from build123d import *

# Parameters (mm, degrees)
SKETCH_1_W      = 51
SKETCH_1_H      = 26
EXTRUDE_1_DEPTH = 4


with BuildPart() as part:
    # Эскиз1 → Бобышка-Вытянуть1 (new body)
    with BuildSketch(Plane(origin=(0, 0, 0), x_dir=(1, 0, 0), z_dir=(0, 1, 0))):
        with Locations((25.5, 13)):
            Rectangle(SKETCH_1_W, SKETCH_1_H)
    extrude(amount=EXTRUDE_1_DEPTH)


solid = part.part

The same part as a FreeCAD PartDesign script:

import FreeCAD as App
import Part
import Sketcher

doc = App.newDocument("Part")
params = doc.addObject("Spreadsheet::Sheet", "Params")
for row, (alias, value) in enumerate([
    ("sketch1_width", "51 mm"),
    ("sketch1_height", "26 mm"),
    ("pad1_length", "4 mm"),
], start=1):
    params.set(f"A{row}", alias)
    params.set(f"B{row}", "=" + value)
    params.setAlias(f"B{row}", alias)

body = doc.addObject("PartDesign::Body", "Body")

sketch1 = body.newObject("Sketcher::SketchObject", "Sketch")
sketch1.AttachmentSupport = (doc.getObject("XZ_Plane"), [""])
sketch1.MapMode = "FlatFace"
sketch1.addGeometry([
    Part.LineSegment(App.Vector(0, -26, 0), App.Vector(0, 0, 0)),
    Part.LineSegment(App.Vector(0, 0, 0), App.Vector(51, 0, 0)),
    Part.LineSegment(App.Vector(51, 0, 0), App.Vector(51, -26, 0)),
    Part.LineSegment(App.Vector(51, -26, 0), App.Vector(0, -26, 0)),
], False)
sketch1.addConstraint([
    Sketcher.Constraint("Coincident", 0, 2, 1, 1),
    Sketcher.Constraint("Coincident", 1, 2, 2, 1),
    Sketcher.Constraint("Coincident", 2, 2, 3, 1),
    Sketcher.Constraint("Coincident", 3, 2, 0, 1),
    Sketcher.Constraint("Vertical", 0),
    Sketcher.Constraint("Horizontal", 1),
    Sketcher.Constraint("Vertical", 2),
    Sketcher.Constraint("Horizontal", 3),
    Sketcher.Constraint("Coincident", 0, 2, -1, 1),
    Sketcher.Constraint("DistanceX", 1, 1, 1, 2, 51.0),
    Sketcher.Constraint("DistanceY", 0, 1, 0, 2, 26.0),
])
sketch1.setExpression("Constraints[9]", "Params.sketch1_width")
sketch1.setExpression("Constraints[10]", "Params.sketch1_height")
pad1 = body.newObject("PartDesign::Pad", "Pad")
pad1.Profile = sketch1
pad1.setExpression("Length", "Params.pad1_length")
pad1.Reversed = True

doc.recompute()
